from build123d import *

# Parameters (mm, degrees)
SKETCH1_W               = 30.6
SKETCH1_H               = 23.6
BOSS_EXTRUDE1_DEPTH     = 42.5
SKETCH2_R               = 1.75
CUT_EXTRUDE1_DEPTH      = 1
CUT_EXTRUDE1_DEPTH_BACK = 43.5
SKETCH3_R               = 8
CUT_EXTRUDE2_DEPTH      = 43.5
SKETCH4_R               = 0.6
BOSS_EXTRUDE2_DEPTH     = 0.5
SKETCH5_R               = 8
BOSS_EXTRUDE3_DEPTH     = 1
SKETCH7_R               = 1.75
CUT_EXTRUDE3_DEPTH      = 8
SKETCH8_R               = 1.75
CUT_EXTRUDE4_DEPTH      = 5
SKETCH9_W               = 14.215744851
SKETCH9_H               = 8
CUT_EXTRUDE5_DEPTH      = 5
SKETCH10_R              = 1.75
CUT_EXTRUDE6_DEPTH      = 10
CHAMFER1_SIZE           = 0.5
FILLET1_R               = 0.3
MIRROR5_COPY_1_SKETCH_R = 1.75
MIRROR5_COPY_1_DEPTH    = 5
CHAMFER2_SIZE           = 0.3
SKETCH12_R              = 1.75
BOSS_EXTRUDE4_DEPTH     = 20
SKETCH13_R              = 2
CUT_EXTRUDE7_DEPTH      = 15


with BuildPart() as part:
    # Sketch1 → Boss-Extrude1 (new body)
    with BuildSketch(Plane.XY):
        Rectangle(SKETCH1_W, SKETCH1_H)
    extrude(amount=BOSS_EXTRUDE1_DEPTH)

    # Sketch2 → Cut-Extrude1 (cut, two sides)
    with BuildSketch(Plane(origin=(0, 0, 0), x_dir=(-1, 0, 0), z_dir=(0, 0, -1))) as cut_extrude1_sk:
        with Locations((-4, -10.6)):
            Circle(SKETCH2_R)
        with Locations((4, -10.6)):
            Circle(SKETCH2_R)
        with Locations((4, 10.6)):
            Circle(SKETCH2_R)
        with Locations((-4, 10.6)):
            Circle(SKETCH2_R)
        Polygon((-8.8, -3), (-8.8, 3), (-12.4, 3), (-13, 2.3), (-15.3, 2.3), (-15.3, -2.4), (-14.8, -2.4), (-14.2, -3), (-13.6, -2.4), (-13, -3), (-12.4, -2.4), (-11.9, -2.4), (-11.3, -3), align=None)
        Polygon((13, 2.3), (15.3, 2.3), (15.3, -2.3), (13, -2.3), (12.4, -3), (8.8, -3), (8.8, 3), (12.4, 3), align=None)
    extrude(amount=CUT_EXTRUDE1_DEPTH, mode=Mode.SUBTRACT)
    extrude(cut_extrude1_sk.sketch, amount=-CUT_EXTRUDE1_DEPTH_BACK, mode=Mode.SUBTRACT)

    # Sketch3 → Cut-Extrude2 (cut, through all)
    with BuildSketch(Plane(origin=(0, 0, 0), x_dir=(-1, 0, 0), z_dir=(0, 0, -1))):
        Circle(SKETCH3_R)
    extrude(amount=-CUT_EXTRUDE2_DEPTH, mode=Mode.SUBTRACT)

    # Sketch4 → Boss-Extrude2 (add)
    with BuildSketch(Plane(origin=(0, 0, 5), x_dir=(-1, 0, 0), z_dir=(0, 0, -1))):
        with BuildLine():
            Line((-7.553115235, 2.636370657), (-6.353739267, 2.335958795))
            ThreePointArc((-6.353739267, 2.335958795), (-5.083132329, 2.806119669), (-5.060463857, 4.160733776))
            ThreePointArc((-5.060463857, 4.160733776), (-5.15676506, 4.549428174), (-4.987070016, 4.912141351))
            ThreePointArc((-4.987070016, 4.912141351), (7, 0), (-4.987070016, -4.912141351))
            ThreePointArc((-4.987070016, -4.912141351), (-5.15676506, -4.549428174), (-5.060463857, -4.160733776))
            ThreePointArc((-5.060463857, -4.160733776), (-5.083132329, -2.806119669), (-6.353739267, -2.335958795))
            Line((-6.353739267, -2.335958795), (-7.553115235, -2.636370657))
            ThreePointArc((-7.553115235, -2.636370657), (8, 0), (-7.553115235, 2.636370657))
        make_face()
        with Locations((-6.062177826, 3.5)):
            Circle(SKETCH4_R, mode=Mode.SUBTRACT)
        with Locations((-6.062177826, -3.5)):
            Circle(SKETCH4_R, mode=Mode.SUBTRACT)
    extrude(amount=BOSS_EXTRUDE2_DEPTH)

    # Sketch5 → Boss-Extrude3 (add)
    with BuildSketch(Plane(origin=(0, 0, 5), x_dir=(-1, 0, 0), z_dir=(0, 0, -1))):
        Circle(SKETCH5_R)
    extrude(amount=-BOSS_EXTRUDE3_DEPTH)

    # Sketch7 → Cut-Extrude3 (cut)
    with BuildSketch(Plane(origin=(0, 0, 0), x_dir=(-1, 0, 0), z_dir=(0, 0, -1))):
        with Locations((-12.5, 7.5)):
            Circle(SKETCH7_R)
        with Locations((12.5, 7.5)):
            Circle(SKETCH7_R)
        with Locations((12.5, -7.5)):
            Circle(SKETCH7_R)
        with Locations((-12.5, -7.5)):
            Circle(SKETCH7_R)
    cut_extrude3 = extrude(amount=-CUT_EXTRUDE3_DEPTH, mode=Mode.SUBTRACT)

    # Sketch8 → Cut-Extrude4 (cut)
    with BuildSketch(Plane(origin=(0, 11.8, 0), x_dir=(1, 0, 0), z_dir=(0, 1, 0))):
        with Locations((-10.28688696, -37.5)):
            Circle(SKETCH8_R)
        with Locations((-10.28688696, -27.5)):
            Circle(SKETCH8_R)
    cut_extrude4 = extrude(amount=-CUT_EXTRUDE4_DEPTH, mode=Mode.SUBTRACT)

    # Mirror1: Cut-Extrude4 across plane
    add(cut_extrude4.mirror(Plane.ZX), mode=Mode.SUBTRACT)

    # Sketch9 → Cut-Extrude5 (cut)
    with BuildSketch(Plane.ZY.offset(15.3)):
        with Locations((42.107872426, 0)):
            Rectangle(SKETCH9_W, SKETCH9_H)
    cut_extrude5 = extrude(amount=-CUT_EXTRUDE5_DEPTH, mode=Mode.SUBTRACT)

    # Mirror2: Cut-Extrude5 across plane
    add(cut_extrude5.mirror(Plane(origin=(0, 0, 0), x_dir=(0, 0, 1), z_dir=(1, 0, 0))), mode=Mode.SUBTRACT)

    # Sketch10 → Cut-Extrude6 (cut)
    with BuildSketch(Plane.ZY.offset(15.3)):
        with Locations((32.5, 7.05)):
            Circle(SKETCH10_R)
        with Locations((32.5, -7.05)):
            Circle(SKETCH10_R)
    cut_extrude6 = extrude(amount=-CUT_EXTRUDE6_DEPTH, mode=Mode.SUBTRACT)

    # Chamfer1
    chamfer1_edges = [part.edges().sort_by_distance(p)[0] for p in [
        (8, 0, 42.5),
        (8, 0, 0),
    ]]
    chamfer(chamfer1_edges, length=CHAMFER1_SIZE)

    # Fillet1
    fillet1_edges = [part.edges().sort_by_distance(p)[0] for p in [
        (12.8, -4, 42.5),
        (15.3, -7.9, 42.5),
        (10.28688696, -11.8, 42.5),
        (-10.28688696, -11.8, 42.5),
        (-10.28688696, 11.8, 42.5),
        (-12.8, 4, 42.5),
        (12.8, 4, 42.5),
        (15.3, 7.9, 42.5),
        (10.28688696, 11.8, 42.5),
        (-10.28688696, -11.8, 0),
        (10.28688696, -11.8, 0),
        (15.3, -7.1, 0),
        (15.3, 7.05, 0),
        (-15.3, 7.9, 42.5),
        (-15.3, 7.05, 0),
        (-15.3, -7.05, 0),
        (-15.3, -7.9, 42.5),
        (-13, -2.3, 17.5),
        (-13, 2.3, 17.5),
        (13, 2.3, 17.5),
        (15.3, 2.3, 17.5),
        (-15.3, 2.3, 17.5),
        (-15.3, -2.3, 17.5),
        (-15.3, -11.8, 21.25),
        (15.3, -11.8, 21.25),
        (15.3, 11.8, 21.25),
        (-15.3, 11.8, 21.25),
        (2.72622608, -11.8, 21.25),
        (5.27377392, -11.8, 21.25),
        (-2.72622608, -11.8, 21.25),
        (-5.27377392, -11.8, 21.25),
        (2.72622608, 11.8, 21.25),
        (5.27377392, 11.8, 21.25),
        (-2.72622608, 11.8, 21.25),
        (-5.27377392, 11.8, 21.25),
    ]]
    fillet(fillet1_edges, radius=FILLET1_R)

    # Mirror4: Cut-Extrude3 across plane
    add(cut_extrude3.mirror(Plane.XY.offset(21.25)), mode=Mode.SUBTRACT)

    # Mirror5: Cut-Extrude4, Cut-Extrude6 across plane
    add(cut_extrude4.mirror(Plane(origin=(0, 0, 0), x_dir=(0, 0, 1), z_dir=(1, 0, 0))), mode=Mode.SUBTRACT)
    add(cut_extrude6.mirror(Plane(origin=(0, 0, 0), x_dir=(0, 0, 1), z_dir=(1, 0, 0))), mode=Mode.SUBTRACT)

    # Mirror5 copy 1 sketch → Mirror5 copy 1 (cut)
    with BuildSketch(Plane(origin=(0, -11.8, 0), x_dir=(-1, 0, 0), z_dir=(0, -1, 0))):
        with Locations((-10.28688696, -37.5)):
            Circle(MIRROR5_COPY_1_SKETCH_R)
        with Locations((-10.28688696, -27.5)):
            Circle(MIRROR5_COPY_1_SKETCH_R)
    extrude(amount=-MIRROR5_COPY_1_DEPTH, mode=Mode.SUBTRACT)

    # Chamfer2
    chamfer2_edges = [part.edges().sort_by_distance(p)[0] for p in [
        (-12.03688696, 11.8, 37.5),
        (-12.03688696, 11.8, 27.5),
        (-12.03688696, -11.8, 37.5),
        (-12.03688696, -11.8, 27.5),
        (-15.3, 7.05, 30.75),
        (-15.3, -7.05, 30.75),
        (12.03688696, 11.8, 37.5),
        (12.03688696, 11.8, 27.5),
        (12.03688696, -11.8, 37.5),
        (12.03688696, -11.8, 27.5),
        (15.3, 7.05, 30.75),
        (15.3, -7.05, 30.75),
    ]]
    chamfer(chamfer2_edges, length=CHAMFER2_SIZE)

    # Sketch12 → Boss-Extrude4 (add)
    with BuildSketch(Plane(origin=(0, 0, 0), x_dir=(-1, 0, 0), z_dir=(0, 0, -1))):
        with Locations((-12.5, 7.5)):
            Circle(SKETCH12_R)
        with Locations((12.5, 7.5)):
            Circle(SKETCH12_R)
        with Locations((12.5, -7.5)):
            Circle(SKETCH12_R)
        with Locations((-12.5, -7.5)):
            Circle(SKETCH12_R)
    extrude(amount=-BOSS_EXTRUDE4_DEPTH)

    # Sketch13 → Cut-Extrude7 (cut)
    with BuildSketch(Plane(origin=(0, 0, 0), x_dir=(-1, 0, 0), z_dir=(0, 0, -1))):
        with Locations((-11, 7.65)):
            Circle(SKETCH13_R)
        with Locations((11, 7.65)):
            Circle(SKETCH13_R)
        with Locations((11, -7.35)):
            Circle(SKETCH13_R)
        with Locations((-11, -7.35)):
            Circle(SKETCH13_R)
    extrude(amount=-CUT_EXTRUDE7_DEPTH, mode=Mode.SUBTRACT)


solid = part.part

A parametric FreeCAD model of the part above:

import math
import FreeCAD as App
import Part
import Sketcher
from FreeCAD import Vector


def edges_at(feature, points):
    """Names of the edges that pass closest to the given points."""
    edges = feature.Shape.Edges
    near = lambda p: min(range(len(edges)), key=lambda i: edges[i].distToShape(Part.Vertex(*p))[0])
    return sorted({f"Edge{near(p) + 1}" for p in points})


def add_polygon(sketch, points):
    """Adds a closed chain of lines whose ends are joined by coincident constraints."""
    first, n = sketch.GeometryCount, len(points)
    for a, b in zip(points, points[1:] + points[:1]):
        sketch.addGeometry(Part.LineSegment(App.Vector(*a, 0), App.Vector(*b, 0)), False)
    for i in range(n):
        sketch.addConstraint(Sketcher.Constraint("Coincident", first + i, 2, first + (i + 1) % n, 1))

doc = App.newDocument("Part")
params = doc.addObject("Spreadsheet::Sheet", "Params")
for row, (alias, value) in enumerate([
    ("sketch1_width", "30.6 mm"),
    ("sketch1_height", "23.6 mm"),
    ("pad1_length", "42.5 mm"),
    ("sketch2_diameter", "3.5 mm"),
    ("sketch2_height", "6 mm"),
    ("sketch2_width", "3.6 mm"),
    ("sketch2_width2", "2.3 mm"),
    ("sketch2_width3", "0.5 mm"),
    ("sketch3_diameter", "16 mm"),
    ("sketch4_radius", "7 mm"),
    ("sketch4_radius2", "8 mm"),
    ("sketch4_diameter", "1.2 mm"),
    ("sketch4_radius3", "1.2 mm"),
    ("pad2_length", "0.5 mm"),
    ("sketch5_diameter", "16 mm"),
    ("pad3_length", "1 mm"),
    ("sketch6_diameter", "3.5 mm"),
    ("pocket3_length", "8 mm"),
    ("sketch7_diameter", "3.5 mm"),
    ("pocket4_length", "5 mm"),
    ("sketch8_width", "8 mm"),
    ("pocket5_length", "5 mm"),
    ("sketch9_diameter", "3.5 mm"),
    ("pocket6_length", "10 mm"),
    ("chamfer_size", "0.5 mm"),
    ("fillet_radius", "0.3 mm"),
    ("sketch10_diameter", "3.5 mm"),
    ("pocket7_length", "5 mm"),
    ("chamfer2_size", "0.3 mm"),
    ("sketch11_diameter", "3.5 mm"),
    ("pad4_length", "20 mm"),
    ("sketch12_diameter", "4 mm"),
    ("pocket8_length", "15 mm"),
], start=1):
    params.set(f"A{row}", alias)
    params.set(f"B{row}", "=" + value)
    params.setAlias(f"B{row}", alias)

body = doc.addObject("PartDesign::Body", "Body")

sketch1 = body.newObject("Sketcher::SketchObject", "Sketch")
sketch1.AttachmentSupport = (doc.getObject("XY_Plane"), [""])
sketch1.MapMode = "FlatFace"
add_polygon(sketch1, [(-15, 12), (-15, -12), (15, -12), (15, 12)])
sketch1.addConstraint([
    Sketcher.Constraint("Vertical", 0),
    Sketcher.Constraint("Horizontal", 1),
    Sketcher.Constraint("Vertical", 2),
    Sketcher.Constraint("Horizontal", 3),
    Sketcher.Constraint("Symmetric", 0, 2, 2, 2, -1, 1),
    Sketcher.Constraint("DistanceX", 1, 1, 1, 2, 30.6),
    Sketcher.Constraint("DistanceY", 0, 2, 0, 1, 23.6),
])
sketch1.setExpression("Constraints[9]", "Params.sketch1_width")
sketch1.setExpression("Constraints[10]", "Params.sketch1_height")
pad1 = body.newObject("PartDesign::Pad", "Pad")
pad1.Profile = sketch1
pad1.setExpression("Length", "Params.pad1_length")

sketch2 = body.newObject("Sketcher::SketchObject", "Sketch001")
sketch2.AttachmentSupport = (doc.getObject("XY_Plane"), [""])
sketch2.MapMode = "FlatFace"
sketch2.addGeometry(Part.Circle(Vector(4, -10.6, 0), Vector(0, 0, 1), 1.8), False)
sketch2.addGeometry(Part.Circle(Vector(-4, -10.6, 0), Vector(0, 0, 1), 1.8), False)
sketch2.addGeometry(Part.Circle(Vector(-4, 10.6, 0), Vector(0, 0, 1), 1.8), False)
sketch2.addGeometry(Part.Circle(Vector(4, 10.6, 0), Vector(0, 0, 1), 1.8), False)
add_polygon(sketch2, [(8.8, -3), (8.8, 3), (12.4, 3), (13, 2.3), (15.3, 2.3), (15.3, -2.4), (14.8, -2.4), (14.2, -3), (13.6, -2.4), (13, -3), (12.4, -2.4), (11.9, -2.4), (11.3, -3)])
add_polygon(sketch2, [(-15.3, 2.3), (-13, 2.3), (-12.4, 3), (-8.8, 3), (-8.8, -3), (-12.4, -3), (-13, -2.3), (-15.3, -2.3)])
sketch2.addConstraint([
    Sketcher.Constraint("Vertical", 4),
    Sketcher.Constraint("Horizontal", 5),
    Sketcher.Constraint("Horizontal", 7),
    Sketcher.Constraint("Vertical", 8),
    Sketcher.Constraint("Horizontal", 9),
    Sketcher.Constraint("Horizontal", 14),
    Sketcher.Constraint("Horizontal", 16),
    Sketcher.Constraint("Horizontal", 17),
    Sketcher.Constraint("Horizontal", 19),
    Sketcher.Constraint("Vertical", 20),
    Sketcher.Constraint("Horizontal", 21),
    Sketcher.Constraint("Horizontal", 23),
    Sketcher.Constraint("Vertical", 24),
    Sketcher.Constraint("Equal", 0, 1),
    Sketcher.Constraint("Equal", 1, 2),
    Sketcher.Constraint("Equal", 2, 3),
    Sketcher.Constraint("Symmetric", 0, 3, 2, 3, -1, 1),
    Sketcher.Constraint("Symmetric", 1, 3, 3, 3, -1, 1),
    Sketcher.Constraint("Symmetric", 16, 2, 19, 2, -1, 1),
    Sketcher.Constraint("Symmetric", 5, 2, 21, 2, -1, 1),
    Sketcher.Constraint("Symmetric", 6, 2, 22, 2, -1, 1),
    Sketcher.Constraint("Symmetric", 0, 3, 1, 3, -2),
    Sketcher.Constraint("Symmetric", 6, 2, 17, 2, -2),
    Sketcher.Constraint("Symmetric", 5, 2, 18, 2, -2),
    Sketcher.Constraint("Perpendicular", 10, 11),
    Sketcher.Constraint("Perpendicular", 11, 12),
    Sketcher.Constraint("Perpendicular", 12, 13),
    Sketcher.Constraint("Perpendicular", 13, 15),
    Sketcher.Constraint("Horizontal", 9, 2, 11, 2),
    Sketcher.Constraint("Horizontal", 10, 2, 12, 2),
    Sketcher.Constraint("Horizontal", 11, 2, 13, 2),
    Sketcher.Constraint("Horizontal", 12, 2, 15, 2),
    Sketcher.Constraint("Vertical", 6, 2, 12, 2),
    Sketcher.Constraint("Vertical", 5, 2, 13, 2),
    Sketcher.Constraint("Equal", 9, 14),
    Sketcher.Constraint("Equal", 7, 17),
    Sketcher.Constraint("Equal", 10, 11),
    Sketcher.Constraint("Diameter", 0, 3.5),
    Sketcher.Constraint("DistanceY", 4, 1, 4, 2, 6.0),
    Sketcher.Constraint("DistanceX", 5, 1, 5, 2, 3.6),
    Sketcher.Constraint("DistanceX", 7, 1, 7, 2, 2.3),
    Sketcher.Constraint("DistanceX", 9, 2, 9, 1, 0.5),
    Sketcher.Constraint("DistanceY", 8, 2, 8, 1, 4.7),
    Sketcher.Constraint("DistanceX", -1, 1, 0, 3, 4.0),
    Sketcher.Constraint("DistanceX", -1, 1, 6, 2, 13.0),
    Sketcher.Constraint("DistanceY", 0, 3, -1, 1, 10.6),
])
sketch2.setExpression("Constraints[58]", "Params.sketch2_diameter")
sketch2.setExpression("Constraints[59]", "Params.sketch2_height")
sketch2.setExpression("Constraints[60]", "Params.sketch2_width")
sketch2.setExpression("Constraints[61]", "Params.sketch2_width2")
sketch2.setExpression("Constraints[62]", "Params.sketch2_width3")
pocket1 = body.newObject("PartDesign::Pocket", "Pocket")
pocket1.Profile = sketch2
pocket1.Type = "ThroughAll"
pocket1.Midplane = True

sketch3 = body.newObject("Sketcher::SketchObject", "Sketch002")
sketch3.AttachmentSupport = (doc.getObject("XY_Plane"), [""])
sketch3.MapMode = "FlatFace"
sketch3.addGeometry(Part.Circle(Vector(0, 0, 0), Vector(0, 0, 1), 8), False)
sketch3.addConstraint([
    Sketcher.Constraint("Coincident", 0, 3, -1, 1),
    Sketcher.Constraint("Diameter", 0, 16.0),
])
sketch3.setExpression("Constraints[1]", "Params.sketch3_diameter")
pocket2 = body.newObject("PartDesign::Pocket", "Pocket001")
pocket2.Profile = sketch3
pocket2.Type = "ThroughAll"
pocket2.Reversed = True

sketch4 = body.newObject("Sketcher::SketchObject", "Sketch003")
sketch4.AttachmentSupport = (doc.getObject("XY_Plane"), [""])
sketch4.MapMode = "FlatFace"
sketch4.AttachmentOffset = App.Placement(Vector(0, 0, 5), App.Rotation())
sketch4.addGeometry([
    Part.LineSegment(Vector(7.6, 2.6, 0), Vector(6.4, 2.3, 0)),
    Part.ArcOfCircle(Part.Circle(Vector(6.1, 3.5, 0), Vector(0, 0, 1), 1.2), math.radians(147), math.radians(284)),
    Part.ArcOfCircle(Part.Circle(Vector(4.6, 4.5, 0), Vector(0, 0, 1), 0.6), math.radians(-33), math.radians(45)),
    Part.ArcOfCircle(Part.Circle(Vector(0, 0, 0), Vector(0, 0, 1), 7), math.radians(45), math.radians(315)),
    Part.ArcOfCircle(Part.Circle(Vector(4.6, -4.5, 0), Vector(0, 0, 1), 0.6), math.radians(-45), math.radians(33)),
    Part.ArcOfCircle(Part.Circle(Vector(6.1, -3.5, 0), Vector(0, 0, 1), 1.2), math.radians(76), math.radians(213)),
    Part.LineSegment(Vector(6.4, -2.3, 0), Vector(7.6, -2.6, 0)),
    Part.ArcOfCircle(Part.Circle(Vector(0, 0, 0), Vector(0, 0, 1), 8), math.radians(19), math.radians(341)),
    Part.Circle(Vector(6.1, -3.5, 0), Vector(0, 0, 1), 0.6),
    Part.Circle(Vector(6.1, 3.5, 0), Vector(0, 0, 1), 0.6),
], False)
sketch4.addConstraint([
    Sketcher.Constraint("Tangent", 0, 2, 1, 2),
    Sketcher.Constraint("Tangent", 1, 1, 2, 1),
    Sketcher.Constraint("Tangent", 2, 2, 3, 1),
    Sketcher.Constraint("Tangent", 3, 2, 4, 1),
    Sketcher.Constraint("Tangent", 4, 2, 5, 2),
    Sketcher.Constraint("Tangent", 5, 1, 6, 1),
    Sketcher.Constraint("Coincident", 6, 2, 7, 2),
    Sketcher.Constraint("Coincident", 7, 1, 0, 1),
    Sketcher.Constraint("Coincident", 3, 3, -1, 1),
    Sketcher.Constraint("Coincident", 7, 3, -1, 1),
    Sketcher.Constraint("Coincident", 8, 3, 5, 3),
    Sketcher.Constraint("Coincident", 9, 3, 1, 3),
    Sketcher.Constraint("Equal", 2, 4),
    Sketcher.Constraint("Equal", 1, 5),
    Sketcher.Constraint("Equal", 4, 8),
    Sketcher.Constraint("Equal", 8, 9),
    Sketcher.Constraint("Symmetric", 1, 3, 5, 3, -1),
    Sketcher.Constraint("Vertical", 0, 2, 5, 1),
    Sketcher.Constraint("Radius", 3, 7.0),
    Sketcher.Constraint("Radius", 7, 8.0),
    Sketcher.Constraint("Diameter", 8, 1.2),
    Sketcher.Constraint("Radius", 1, 1.2),
    Sketcher.Constraint("DistanceY", 5, 3, 1, 3, 7.0),
    Sketcher.Constraint("DistanceY", -1, 1, 2, 3, 4.491101),
    Sketcher.Constraint("DistanceX", -1, 1, 0, 2, 6.353739),
])
sketch4.setExpression("Constraints[18]", "Params.sketch4_radius")
sketch4.setExpression("Constraints[19]", "Params.sketch4_radius2")
sketch4.setExpression("Constraints[20]", "Params.sketch4_diameter")
sketch4.setExpression("Constraints[21]", "Params.sketch4_radius3")
pad2 = body.newObject("PartDesign::Pad", "Pad001")
pad2.Profile = sketch4
pad2.setExpression("Length", "Params.pad2_length")
pad2.Reversed = True

sketch5 = body.newObject("Sketcher::SketchObject", "Sketch004")
sketch5.AttachmentSupport = (doc.getObject("XY_Plane"), [""])
sketch5.MapMode = "FlatFace"
sketch5.AttachmentOffset = App.Placement(Vector(0, 0, 5), App.Rotation())
sketch5.addGeometry(Part.Circle(Vector(0, 0, 0), Vector(0, 0, 1), 8), False)
sketch5.addConstraint([
    Sketcher.Constraint("Coincident", 0, 3, -1, 1),
    Sketcher.Constraint("Diameter", 0, 16.0),
])
sketch5.setExpression("Constraints[1]", "Params.sketch5_diameter")
pad3 = body.newObject("PartDesign::Pad", "Pad002")
pad3.Profile = sketch5
pad3.setExpression("Length", "Params.pad3_length")

sketch6 = body.newObject("Sketcher::SketchObject", "Sketch005")
sketch6.AttachmentSupport = (doc.getObject("XY_Plane"), [""])
sketch6.MapMode = "FlatFace"
sketch6.addGeometry([
    Part.Circle(Vector(12.5, 7.5, 0), Vector(0, 0, 1), 1.8),
    Part.Circle(Vector(-12.5, 7.5, 0), Vector(0, 0, 1), 1.8),
    Part.Circle(Vector(-12.5, -7.5, 0), Vector(0, 0, 1), 1.8),
    Part.Circle(Vector(12.5, -7.5, 0), Vector(0, 0, 1), 1.8),
], False)
sketch6.addConstraint([
    Sketcher.Constraint("Equal", 0, 1),
    Sketcher.Constraint("Equal", 1, 2),
    Sketcher.Constraint("Equal", 2, 3),
    Sketcher.Constraint("Symmetric", 0, 3, 2, 3, -1, 1),
    Sketcher.Constraint("Symmetric", 1, 3, 3, 3, -1, 1),
    Sketcher.Constraint("Symmetric", 0, 3, 1, 3, -2),
    Sketcher.Constraint("Diameter", 0, 3.5),
    Sketcher.Constraint("DistanceX", 1, 3, 0, 3, 25.0),
    Sketcher.Constraint("DistanceY", 2, 3, 1, 3, 15.0),
])
sketch6.setExpression("Constraints[6]", "Params.sketch6_diameter")
pocket3 = body.newObject("PartDesign::Pocket", "Pocket002")
pocket3.Profile = sketch6
pocket3.setExpression("Length", "Params.pocket3_length")
pocket3.Reversed = True

sketch7 = body.newObject("Sketcher::SketchObject", "Sketch006")
sketch7.AttachmentSupport = (doc.getObject("XZ_Plane"), [""])
sketch7.MapMode = "FlatFace"
sketch7.AttachmentOffset = App.Placement(Vector(0, 0, -11.8), App.Rotation())
sketch7.addGeometry([
    Part.Circle(Vector(-10.3, 37.5, 0), Vector(0, 0, 1), 1.8),
    Part.Circle(Vector(-10.3, 27.5, 0), Vector(0, 0, 1), 1.8),
], False)
sketch7.addConstraint([
    Sketcher.Constraint("Equal", 0, 1),
    Sketcher.Constraint("Vertical", 0, 3, 1, 3),
    Sketcher.Constraint("Diameter", 0, 3.5),
    Sketcher.Constraint("DistanceY", 1, 3, 0, 3, 10.0),
    Sketcher.Constraint("DistanceY", -1, 1, 0, 3, 37.5),
    Sketcher.Constraint("DistanceX", 0, 3, -1, 1, 10.286887),
])
sketch7.setExpression("Constraints[2]", "Params.sketch7_diameter")
pocket4 = body.newObject("PartDesign::Pocket", "Pocket003")
pocket4.Profile = sketch7
pocket4.setExpression("Length", "Params.pocket4_length")
pocket4.Reversed = True
doc.recompute()

mirrored = body.newObject("PartDesign::Mirrored", "Mirrored")
mirrored.Originals = [pocket4]
mirrored.MirrorPlane = (doc.getObject("XZ_Plane"), [""])
body.Tip = mirrored

sketch8 = body.newObject("Sketcher::SketchObject", "Sketch007")
sketch8.AttachmentSupport = (doc.getObject("YZ_Plane"), [""])
sketch8.MapMode = "FlatFace"
sketch8.AttachmentOffset = App.Placement(Vector(0, 0, -15.3), App.Rotation())
add_polygon(sketch8, [(4, 35), (-4, 35), (-4, 49), (4, 49)])
sketch8.addConstraint([
    Sketcher.Constraint("Horizontal", 0),
    Sketcher.Constraint("Vertical", 1),
    Sketcher.Constraint("Horizontal", 2),
    Sketcher.Constraint("Vertical", 3),
    Sketcher.Constraint("DistanceX", 0, 2, 0, 1, 8.0),
    Sketcher.Constraint("DistanceX", 0, 2, -1, 1, 4.0),
    Sketcher.Constraint("DistanceY", -1, 1, 0, 2, 35.0),
    Sketcher.Constraint("DistanceY", 1, 1, 1, 2, 14.215745),
])
sketch8.setExpression("Constraints[8]", "Params.sketch8_width")
pocket5 = body.newObject("PartDesign::Pocket", "Pocket004")
pocket5.Profile = sketch8
pocket5.setExpression("Length", "Params.pocket5_length")
pocket5.Reversed = True
doc.recompute()

mirrored2 = body.newObject("PartDesign::Mirrored", "Mirrored001")
mirrored2.Originals = [pocket5]
mirrored2.MirrorPlane = (doc.getObject("YZ_Plane"), [""])
body.Tip = mirrored2

sketch9 = body.newObject("Sketcher::SketchObject", "Sketch008")
sketch9.AttachmentSupport = (doc.getObject("YZ_Plane"), [""])
sketch9.MapMode = "FlatFace"
sketch9.AttachmentOffset = App.Placement(Vector(0, 0, -15.3), App.Rotation())
sketch9.addGeometry([
    Part.Circle(Vector(7, 32.5, 0), Vector(0, 0, 1), 1.8),
    Part.Circle(Vector(-7, 32.5, 0), Vector(0, 0, 1), 1.8),
], False)
sketch9.addConstraint([
    Sketcher.Constraint("Equal", 0, 1),
    Sketcher.Constraint("Symmetric", 0, 3, 1, 3, -2),
    Sketcher.Constraint("Diameter", 0, 3.5),
    Sketcher.Constraint("DistanceY", -1, 1, 0, 3, 32.5),
    Sketcher.Constraint("DistanceX", 1, 3, 0, 3, 14.1),
])
sketch9.setExpression("Constraints[2]", "Params.sketch9_diameter")
pocket6 = body.newObject("PartDesign::Pocket", "Pocket005")
pocket6.Profile = sketch9
pocket6.setExpression("Length", "Params.pocket6_length")
pocket6.Reversed = True
doc.recompute()

chamfer = body.newObject("PartDesign::Chamfer", "Chamfer")
chamfer.Base = (pocket6, edges_at(pocket6, [(8, 0, 42.5), (8, 0, 0)]))
chamfer.setExpression("Size", "Params.chamfer_size")
doc.recompute()

fillet = body.newObject("PartDesign::Fillet", "Fillet")
fillet.Base = (chamfer, edges_at(chamfer, [
    (12.8, -4, 42.5),
    (15.3, -7.9, 42.5),
    (10.287, -11.8, 42.5),
    (-10.287, -11.8, 42.5),
    (-10.287, 11.8, 42.5),
    (-12.8, 4, 42.5),
    (12.8, 4, 42.5),
    (15.3, 7.9, 42.5),
    (10.287, 11.8, 42.5),
    (-10.287, -11.8, 0),
    (10.287, -11.8, 0),
    (15.3, -7.1, 0),
    (15.3, 7.05, 0),
    (-15.3, 7.9, 42.5),
    (-15.3, 7.05, 0),
    (-15.3, -7.05, 0),
    (-15.3, -7.9, 42.5),
    (-13, -2.3, 17.5),
    (-13, 2.3, 17.5),
    (13, 2.3, 17.5),
    (15.3, 2.3, 17.5),
    (-15.3, 2.3, 17.5),
    (-15.3, -2.3, 17.5),
    (-15.3, -11.8, 21.25),
    (15.3, -11.8, 21.25),
    (15.3, 11.8, 21.25),
    (-15.3, 11.8, 21.25),
    (2.726, -11.8, 21.25),
    (5.274, -11.8, 21.25),
    (-2.726, -11.8, 21.25),
    (-5.274, -11.8, 21.25),
    (2.726, 11.8, 21.25),
    (5.274, 11.8, 21.25),
    (-2.726, 11.8, 21.25),
    (-5.274, 11.8, 21.25),
]))
fillet.setExpression("Radius", "Params.fillet_radius")
doc.recompute()

datumplane = body.newObject("PartDesign::Plane", "DatumPlane")
datumplane.AttachmentSupport = (doc.getObject("XY_Plane"), [""])
datumplane.MapMode = "FlatFace"
datumplane.AttachmentOffset = App.Placement(Vector(0, 0, 21.25), App.Rotation())
mirrored3 = body.newObject("PartDesign::Mirrored", "Mirrored002")
mirrored3.Originals = [pocket3]
mirrored3.MirrorPlane = (datumplane, [""])
body.Tip = mirrored3
doc.recompute()

mirrored4 = body.newObject("PartDesign::Mirrored", "Mirrored003")
mirrored4.Originals = [pocket4, pocket6]
mirrored4.MirrorPlane = (doc.getObject("YZ_Plane"), [""])
body.Tip = mirrored4

sketch10 = body.newObject("Sketcher::SketchObject", "Sketch009")
sketch10.AttachmentSupport = (doc.getObject("XZ_Plane"), [""])
sketch10.MapMode = "FlatFace"
sketch10.AttachmentOffset = App.Placement(Vector(0, 0, 11.8), App.Rotation())
sketch10.addGeometry([
    Part.Circle(Vector(10.3, 37.5, 0), Vector(0, 0, 1), 1.8),
    Part.Circle(Vector(10.3, 27.5, 0), Vector(0, 0, 1), 1.8),
], False)
sketch10.addConstraint([
    Sketcher.Constraint("Equal", 0, 1),
    Sketcher.Constraint("Vertical", 0, 3, 1, 3),
    Sketcher.Constraint("Diameter", 0, 3.5),
    Sketcher.Constraint("DistanceY", 1, 3, 0, 3, 10.0),
    Sketcher.Constraint("DistanceY", -1, 1, 0, 3, 37.5),
    Sketcher.Constraint("DistanceX", -1, 1, 0, 3, 10.286887),
])
sketch10.setExpression("Constraints[2]", "Params.sketch10_diameter")
pocket7 = body.newObject("PartDesign::Pocket", "Pocket006")
pocket7.Profile = sketch10
pocket7.setExpression("Length", "Params.pocket7_length")
doc.recompute()

chamfer2 = body.newObject("PartDesign::Chamfer", "Chamfer001")
chamfer2.Base = (pocket7, edges_at(pocket7, [
    (-12.037, 11.8, 37.5),
    (-12.037, 11.8, 27.5),
    (-12.037, -11.8, 37.5),
    (-12.037, -11.8, 27.5),
    (-15.3, 7.05, 30.75),
    (-15.3, -7.05, 30.75),
    (12.037, 11.8, 37.5),
    (12.037, 11.8, 27.5),
    (12.037, -11.8, 37.5),
    (12.037, -11.8, 27.5),
    (15.3, 7.05, 30.75),
    (15.3, -7.05, 30.75),
]))
chamfer2.setExpression("Size", "Params.chamfer2_size")

sketch11 = body.newObject("Sketcher::SketchObject", "Sketch010")
sketch11.AttachmentSupport = (doc.getObject("XY_Plane"), [""])
sketch11.MapMode = "FlatFace"
sketch11.addGeometry([
    Part.Circle(Vector(12.5, 7.5, 0), Vector(0, 0, 1), 1.8),
    Part.Circle(Vector(-12.5, 7.5, 0), Vector(0, 0, 1), 1.8),
    Part.Circle(Vector(-12.5, -7.5, 0), Vector(0, 0, 1), 1.8),
    Part.Circle(Vector(12.5, -7.5, 0), Vector(0, 0, 1), 1.8),
], False)
sketch11.addConstraint([
    Sketcher.Constraint("Equal", 0, 1),
    Sketcher.Constraint("Equal", 1, 2),
    Sketcher.Constraint("Equal", 2, 3),
    Sketcher.Constraint("Symmetric", 0, 3, 2, 3, -1, 1),
    Sketcher.Constraint("Symmetric", 1, 3, 3, 3, -1, 1),
    Sketcher.Constraint("Symmetric", 0, 3, 1, 3, -2),
    Sketcher.Constraint("Diameter", 0, 3.5),
    Sketcher.Constraint("DistanceX", 1, 3, 0, 3, 25.0),
    Sketcher.Constraint("DistanceY", 2, 3, 1, 3, 15.0),
])
sketch11.setExpression("Constraints[6]", "Params.sketch11_diameter")
pad4 = body.newObject("PartDesign::Pad", "Pad003")
pad4.Profile = sketch11
pad4.setExpression("Length", "Params.pad4_length")

sketch12 = body.newObject("Sketcher::SketchObject", "Sketch011")
sketch12.AttachmentSupport = (doc.getObject("XY_Plane"), [""])
sketch12.MapMode = "FlatFace"
sketch12.addGeometry([
    Part.Circle(Vector(11, 7.7, 0), Vector(0, 0, 1), 2),
    Part.Circle(Vector(-11, 7.7, 0), Vector(0, 0, 1), 2),
    Part.Circle(Vector(-11, -7.3, 0), Vector(0, 0, 1), 2),
    Part.Circle(Vector(11, -7.3, 0), Vector(0, 0, 1), 2),
], False)
sketch12.addConstraint([
    Sketcher.Constraint("Equal", 0, 1),
    Sketcher.Constraint("Equal", 1, 2),
    Sketcher.Constraint("Equal", 2, 3),
    Sketcher.Constraint("Symmetric", 0, 3, 1, 3, -2),
    Sketcher.Constraint("Symmetric", 2, 3, 3, 3, -2),
    Sketcher.Constraint("Vertical", 1, 3, 2, 3),
    Sketcher.Constraint("Diameter", 0, 4.0),
    Sketcher.Constraint("DistanceX", -1, 1, 0, 3, 11.0),
    Sketcher.Constraint("DistanceY", 2, 3, 1, 3, 15.0),
    Sketcher.Constraint("DistanceY", -1, 1, 0, 3, 7.65),
])
sketch12.setExpression("Constraints[6]", "Params.sketch12_diameter")
pocket8 = body.newObject("PartDesign::Pocket", "Pocket007")
pocket8.Profile = sketch12
pocket8.setExpression("Length", "Params.pocket8_length")
pocket8.Reversed = True

doc.recompute()
